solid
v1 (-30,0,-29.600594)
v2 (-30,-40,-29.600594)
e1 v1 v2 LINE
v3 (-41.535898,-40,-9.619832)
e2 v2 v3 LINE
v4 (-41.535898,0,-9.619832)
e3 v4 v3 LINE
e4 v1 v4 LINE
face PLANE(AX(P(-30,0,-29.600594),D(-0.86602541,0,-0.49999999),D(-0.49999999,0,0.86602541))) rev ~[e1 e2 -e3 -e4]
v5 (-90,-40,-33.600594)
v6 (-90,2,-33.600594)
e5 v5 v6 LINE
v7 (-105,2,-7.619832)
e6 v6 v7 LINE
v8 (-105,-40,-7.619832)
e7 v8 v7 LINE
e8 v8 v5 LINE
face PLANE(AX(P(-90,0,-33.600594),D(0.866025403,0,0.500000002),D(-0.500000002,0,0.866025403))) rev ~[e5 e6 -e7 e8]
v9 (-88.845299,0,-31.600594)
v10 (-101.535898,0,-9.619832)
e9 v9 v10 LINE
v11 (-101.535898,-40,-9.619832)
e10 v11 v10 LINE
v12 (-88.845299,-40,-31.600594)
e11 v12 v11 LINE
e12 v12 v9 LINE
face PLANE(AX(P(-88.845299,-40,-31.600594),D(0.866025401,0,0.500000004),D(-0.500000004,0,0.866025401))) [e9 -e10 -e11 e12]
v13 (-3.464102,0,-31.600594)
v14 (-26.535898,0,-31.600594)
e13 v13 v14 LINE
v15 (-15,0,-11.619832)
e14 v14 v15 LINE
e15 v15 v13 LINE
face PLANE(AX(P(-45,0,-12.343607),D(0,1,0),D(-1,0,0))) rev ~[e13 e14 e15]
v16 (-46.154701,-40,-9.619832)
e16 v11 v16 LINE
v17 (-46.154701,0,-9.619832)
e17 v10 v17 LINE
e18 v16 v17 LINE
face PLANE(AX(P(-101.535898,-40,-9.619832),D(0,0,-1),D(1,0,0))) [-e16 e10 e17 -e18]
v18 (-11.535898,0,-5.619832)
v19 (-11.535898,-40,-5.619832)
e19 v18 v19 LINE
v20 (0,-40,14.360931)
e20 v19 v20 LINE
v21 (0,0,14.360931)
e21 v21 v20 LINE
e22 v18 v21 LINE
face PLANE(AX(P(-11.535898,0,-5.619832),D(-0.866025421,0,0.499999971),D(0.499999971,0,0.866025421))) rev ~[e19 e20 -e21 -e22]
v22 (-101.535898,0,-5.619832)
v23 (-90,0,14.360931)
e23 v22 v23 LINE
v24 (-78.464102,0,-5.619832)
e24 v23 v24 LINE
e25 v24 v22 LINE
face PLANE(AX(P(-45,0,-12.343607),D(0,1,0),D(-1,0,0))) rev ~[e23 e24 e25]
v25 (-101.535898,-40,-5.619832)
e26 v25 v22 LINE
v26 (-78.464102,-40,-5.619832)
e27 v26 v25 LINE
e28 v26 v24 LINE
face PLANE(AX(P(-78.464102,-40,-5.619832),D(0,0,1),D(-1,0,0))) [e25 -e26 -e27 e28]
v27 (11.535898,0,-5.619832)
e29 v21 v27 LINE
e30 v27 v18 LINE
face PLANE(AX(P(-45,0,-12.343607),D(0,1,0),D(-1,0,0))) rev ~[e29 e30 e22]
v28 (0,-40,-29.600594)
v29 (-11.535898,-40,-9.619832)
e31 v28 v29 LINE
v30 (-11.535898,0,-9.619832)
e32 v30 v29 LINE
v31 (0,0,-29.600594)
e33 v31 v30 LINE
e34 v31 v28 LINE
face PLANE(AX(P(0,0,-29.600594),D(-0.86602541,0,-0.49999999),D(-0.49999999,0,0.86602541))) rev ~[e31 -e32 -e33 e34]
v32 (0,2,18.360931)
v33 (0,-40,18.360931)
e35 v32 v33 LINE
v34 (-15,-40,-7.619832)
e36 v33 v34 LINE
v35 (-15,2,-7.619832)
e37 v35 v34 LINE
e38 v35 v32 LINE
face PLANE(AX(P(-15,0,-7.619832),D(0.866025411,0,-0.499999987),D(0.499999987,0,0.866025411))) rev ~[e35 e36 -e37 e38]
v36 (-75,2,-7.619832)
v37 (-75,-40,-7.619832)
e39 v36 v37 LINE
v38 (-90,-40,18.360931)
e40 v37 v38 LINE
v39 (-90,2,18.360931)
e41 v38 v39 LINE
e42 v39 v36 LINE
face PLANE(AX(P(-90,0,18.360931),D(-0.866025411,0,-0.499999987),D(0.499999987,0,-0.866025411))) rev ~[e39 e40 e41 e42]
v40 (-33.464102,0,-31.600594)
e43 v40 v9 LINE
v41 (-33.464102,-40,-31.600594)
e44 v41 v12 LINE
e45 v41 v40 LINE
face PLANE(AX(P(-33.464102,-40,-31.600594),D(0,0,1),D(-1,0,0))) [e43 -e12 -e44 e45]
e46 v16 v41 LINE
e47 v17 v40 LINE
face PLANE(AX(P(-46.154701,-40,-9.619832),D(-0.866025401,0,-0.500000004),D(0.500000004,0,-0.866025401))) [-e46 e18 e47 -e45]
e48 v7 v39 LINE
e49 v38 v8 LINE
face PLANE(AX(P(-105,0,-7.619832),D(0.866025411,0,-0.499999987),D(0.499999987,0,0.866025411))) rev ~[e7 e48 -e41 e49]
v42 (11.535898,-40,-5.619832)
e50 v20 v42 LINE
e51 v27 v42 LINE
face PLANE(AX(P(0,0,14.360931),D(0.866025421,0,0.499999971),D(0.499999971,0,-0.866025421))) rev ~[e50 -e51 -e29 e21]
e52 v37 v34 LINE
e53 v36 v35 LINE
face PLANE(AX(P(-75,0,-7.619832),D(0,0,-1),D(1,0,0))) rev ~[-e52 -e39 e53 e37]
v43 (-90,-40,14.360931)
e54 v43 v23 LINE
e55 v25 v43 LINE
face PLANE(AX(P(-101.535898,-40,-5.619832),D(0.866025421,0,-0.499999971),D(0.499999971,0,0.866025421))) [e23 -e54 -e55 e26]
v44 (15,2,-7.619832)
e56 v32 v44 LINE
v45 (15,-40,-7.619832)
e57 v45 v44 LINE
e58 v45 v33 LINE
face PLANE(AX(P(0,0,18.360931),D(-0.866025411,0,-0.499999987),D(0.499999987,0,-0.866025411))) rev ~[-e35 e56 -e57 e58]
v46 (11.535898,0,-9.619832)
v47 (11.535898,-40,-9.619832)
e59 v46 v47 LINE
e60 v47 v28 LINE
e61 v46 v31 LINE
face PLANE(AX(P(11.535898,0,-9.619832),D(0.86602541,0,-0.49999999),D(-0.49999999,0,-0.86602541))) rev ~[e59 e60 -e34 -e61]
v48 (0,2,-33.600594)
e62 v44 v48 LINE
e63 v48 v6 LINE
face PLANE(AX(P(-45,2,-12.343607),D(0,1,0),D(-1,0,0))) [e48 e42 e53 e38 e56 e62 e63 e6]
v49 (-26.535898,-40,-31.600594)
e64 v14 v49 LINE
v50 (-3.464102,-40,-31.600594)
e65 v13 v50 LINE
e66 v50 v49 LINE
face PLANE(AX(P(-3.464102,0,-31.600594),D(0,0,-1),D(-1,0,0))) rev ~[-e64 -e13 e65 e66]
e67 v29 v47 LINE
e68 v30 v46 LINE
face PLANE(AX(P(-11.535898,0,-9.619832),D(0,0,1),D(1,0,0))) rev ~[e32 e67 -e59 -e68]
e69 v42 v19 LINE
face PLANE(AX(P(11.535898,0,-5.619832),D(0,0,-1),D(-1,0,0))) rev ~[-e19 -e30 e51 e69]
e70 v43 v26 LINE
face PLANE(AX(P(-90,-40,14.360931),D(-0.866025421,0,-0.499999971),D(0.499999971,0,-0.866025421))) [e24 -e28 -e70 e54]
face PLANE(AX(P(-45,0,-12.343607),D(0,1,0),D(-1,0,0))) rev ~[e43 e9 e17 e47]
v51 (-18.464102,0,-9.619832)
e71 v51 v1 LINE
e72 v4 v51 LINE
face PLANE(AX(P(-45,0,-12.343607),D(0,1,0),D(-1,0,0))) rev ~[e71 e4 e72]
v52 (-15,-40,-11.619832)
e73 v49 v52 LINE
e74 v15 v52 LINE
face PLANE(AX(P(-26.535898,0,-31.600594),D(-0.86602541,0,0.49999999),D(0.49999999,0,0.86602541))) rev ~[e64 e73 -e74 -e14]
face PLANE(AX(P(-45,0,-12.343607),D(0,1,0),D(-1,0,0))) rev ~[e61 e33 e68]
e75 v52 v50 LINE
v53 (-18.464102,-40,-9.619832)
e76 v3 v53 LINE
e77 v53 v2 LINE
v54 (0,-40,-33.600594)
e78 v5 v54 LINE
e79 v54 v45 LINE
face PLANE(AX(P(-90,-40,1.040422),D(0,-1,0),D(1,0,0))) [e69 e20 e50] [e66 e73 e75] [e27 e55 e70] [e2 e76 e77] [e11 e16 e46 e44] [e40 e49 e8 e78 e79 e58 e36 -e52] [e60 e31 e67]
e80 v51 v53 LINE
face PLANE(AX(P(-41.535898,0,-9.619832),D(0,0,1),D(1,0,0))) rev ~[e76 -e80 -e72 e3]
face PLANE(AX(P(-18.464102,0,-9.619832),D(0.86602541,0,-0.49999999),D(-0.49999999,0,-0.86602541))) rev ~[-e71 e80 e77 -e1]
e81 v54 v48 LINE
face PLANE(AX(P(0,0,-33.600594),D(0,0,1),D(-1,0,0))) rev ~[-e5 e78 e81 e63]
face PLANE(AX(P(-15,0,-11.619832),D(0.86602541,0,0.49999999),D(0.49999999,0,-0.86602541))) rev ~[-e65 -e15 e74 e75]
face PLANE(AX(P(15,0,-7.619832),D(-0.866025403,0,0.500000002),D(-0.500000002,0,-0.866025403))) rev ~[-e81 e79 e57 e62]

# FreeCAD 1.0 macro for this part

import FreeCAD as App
import Part
import Sketcher
Q = App.Units.Quantity

doc = App.newDocument("Part")
body = doc.addObject("PartDesign::Body", "Body")

sketch1 = doc.addObject("Sketcher::SketchObject", "Sketch")
body.addObject(sketch1)
sketch1.AttachmentSupport = (doc.XZ_Plane, [""])
sketch1.MapMode = "FlatFace"
sketch1.addGeometry([
    Part.LineSegment(App.Vector(-45, -8, 0), App.Vector(-30, -34, 0)),
    Part.LineSegment(App.Vector(-30, -34, 0), App.Vector(0, -34, 0)),
    Part.LineSegment(App.Vector(0, -34, 0), App.Vector(15, -8, 0)),
    Part.LineSegment(App.Vector(15, -8, 0), App.Vector(0, 18, 0)),
    Part.LineSegment(App.Vector(0, 18, 0), App.Vector(-15, -8, 0)),
    Part.LineSegment(App.Vector(-15, -8, 0), App.Vector(-45, -8, 0)),
    Part.LineSegment(App.Vector(-42, -10, 0), App.Vector(-18, -10, 0)),
    Part.LineSegment(App.Vector(-18, -10, 0), App.Vector(-30, -30, 0)),
    Part.LineSegment(App.Vector(-30, -30, 0), App.Vector(-42, -10, 0)),
    Part.LineSegment(App.Vector(-15, -12, 0), App.Vector(-3, -32, 0)),
    Part.LineSegment(App.Vector(-3, -32, 0), App.Vector(-27, -32, 0)),
    Part.LineSegment(App.Vector(-27, -32, 0), App.Vector(-15, -12, 0)),
    Part.LineSegment(App.Vector(0, -30, 0), App.Vector(-12, -10, 0)),
    Part.LineSegment(App.Vector(-12, -10, 0), App.Vector(12, -10, 0)),
    Part.LineSegment(App.Vector(12, -10, 0), App.Vector(0, -30, 0)),
    Part.LineSegment(App.Vector(12, -6, 0), App.Vector(-12, -6, 0)),
    Part.LineSegment(App.Vector(-12, -6, 0), App.Vector(0, 14, 0)),
    Part.LineSegment(App.Vector(0, 14, 0), App.Vector(12, -6, 0)),
], False)
sketch1.addConstraint([
    Sketcher.Constraint("Coincident", 0, 2, 1, 1),
    Sketcher.Constraint("Coincident", 1, 2, 2, 1),
    Sketcher.Constraint("Coincident", 2, 2, 3, 1),
    Sketcher.Constraint("Coincident", 3, 2, 4, 1),
    Sketcher.Constraint("Coincident", 4, 2, 5, 1),
    Sketcher.Constraint("Coincident", 5, 2, 0, 1),
    Sketcher.Constraint("Coincident", 6, 2, 7, 1),
    Sketcher.Constraint("Coincident", 7, 2, 8, 1),
    Sketcher.Constraint("Coincident", 8, 2, 6, 1),
    Sketcher.Constraint("Coincident", 9, 2, 10, 1),
    Sketcher.Constraint("Coincident", 10, 2, 11, 1),
    Sketcher.Constraint("Coincident", 11, 2, 9, 1),
    Sketcher.Constraint("Coincident", 12, 2, 13, 1),
    Sketcher.Constraint("Coincident", 13, 2, 14, 1),
    Sketcher.Constraint("Coincident", 14, 2, 12, 1),
    Sketcher.Constraint("Coincident", 15, 2, 16, 1),
    Sketcher.Constraint("Coincident", 16, 2, 17, 1),
    Sketcher.Constraint("Coincident", 17, 2, 15, 1),
    Sketcher.Constraint("Horizontal", 1),
    Sketcher.Constraint("Horizontal", 5),
    Sketcher.Constraint("Horizontal", 6),
    Sketcher.Constraint("Horizontal", 10),
    Sketcher.Constraint("Horizontal", 13),
    Sketcher.Constraint("Horizontal", 15),
    Sketcher.Constraint("Symmetric", 2, 2, 4, 2, -2),
    Sketcher.Constraint("PointOnObject", 1, 2, -2),
    Sketcher.Constraint("PointOnObject", 3, 2, -2),
    Sketcher.Constraint("PointOnObject", 14, 2, -2),
    Sketcher.Constraint("PointOnObject", 16, 2, -2),
    Sketcher.Constraint("Parallel", 0, 3),
    Sketcher.Constraint("Parallel", 2, 4),
    Sketcher.Constraint("Parallel", 4, 7),
    Sketcher.Constraint("Parallel", 3, 8),
    Sketcher.Constraint("Parallel", 8, 9),
    Sketcher.Constraint("Parallel", 7, 11),
    Sketcher.Constraint("Parallel", 9, 12),
    Sketcher.Constraint("Parallel", 11, 14),
    Sketcher.Constraint("Parallel", 14, 16),
    Sketcher.Constraint("Parallel", 12, 17),
    Sketcher.Constraint("Horizontal", 8, 2, 12, 2),
    Sketcher.Constraint("Horizontal", 7, 2, 14, 2),
    Sketcher.Constraint("Vertical", 0, 2, 7, 2),
    Sketcher.Constraint("Vertical", 4, 2, 11, 2),
    Sketcher.Constraint("Vertical", 12, 2, 15, 2),
    Sketcher.Constraint("Equal", 6, 10),
    Sketcher.Constraint("DistanceX", 1, 1, 1, 2, 30.0),
    Sketcher.Constraint("Angle", 0, Q("-60 deg")),
    Sketcher.Constraint("Distance", 0, 30.0),
    Sketcher.Constraint("DistanceY", 6, 2, 4, 2, 2.0),
    Sketcher.Constraint("DistanceY", 0, 2, 7, 2, 4.0),
    Sketcher.Constraint("DistanceY", 1, 2, 9, 2, 2.0),
    Sketcher.Constraint("DistanceY", 12, 2, 15, 2, 4.0),
    Sketcher.Constraint("DistanceY", 2, 2, -1, 1, 7.619832),
])
pad1 = doc.addObject("PartDesign::Pad", "Pad")
body.addObject(pad1)
pad1.Profile = sketch1
pad1.Length = 40

sketch2 = doc.addObject("Sketcher::SketchObject", "Sketch001")
body.addObject(sketch2)
sketch2.AttachmentSupport = (doc.XZ_Plane, [""])
sketch2.MapMode = "FlatFace"
sketch2.AttachmentOffset = App.Placement(App.Vector(0, 0, 40), App.Rotation())
sketch2.addGeometry([
    Part.LineSegment(App.Vector(-30, -34, 0), App.Vector(-45, -8, 0)),
    Part.LineSegment(App.Vector(-45, -8, 0), App.Vector(-105, -8, 0)),
    Part.LineSegment(App.Vector(-105, -8, 0), App.Vector(-90, -34, 0)),
    Part.LineSegment(App.Vector(-90, -34, 0), App.Vector(-30, -34, 0)),
    Part.LineSegment(App.Vector(-46, -10, 0), App.Vector(-33, -32, 0)),
    Part.LineSegment(App.Vector(-33, -32, 0), App.Vector(-89, -32, 0)),
    Part.LineSegment(App.Vector(-89, -32, 0), App.Vector(-102, -10, 0)),
    Part.LineSegment(App.Vector(-102, -10, 0), App.Vector(-46, -10, 0)),
], False)
sketch2.addConstraint([
    Sketcher.Constraint("Coincident", 0, 2, 1, 1),
    Sketcher.Constraint("Coincident", 1, 2, 2, 1),
    Sketcher.Constraint("Coincident", 2, 2, 3, 1),
    Sketcher.Constraint("Coincident", 3, 2, 0, 1),
    Sketcher.Constraint("Coincident", 4, 2, 5, 1),
    Sketcher.Constraint("Coincident", 5, 2, 6, 1),
    Sketcher.Constraint("Coincident", 6, 2, 7, 1),
    Sketcher.Constraint("Coincident", 7, 2, 4, 1),
    Sketcher.Constraint("Horizontal", 1),
    Sketcher.Constraint("Horizontal", 3),
    Sketcher.Constraint("Horizontal", 5),
    Sketcher.Constraint("Horizontal", 7),
    Sketcher.Constraint("Parallel", 0, 2),
    Sketcher.Constraint("Parallel", 2, 4),
    Sketcher.Constraint("Parallel", 4, 6),
    Sketcher.Constraint("DistanceX", 1, 2, 1, 1, 60.0),
    Sketcher.Constraint("Angle", 0, Q("120 deg")),
    Sketcher.Constraint("Distance", 0, 30.0),
    Sketcher.Constraint("DistanceX", 0, 2, -1, 1, 45.0),
    Sketcher.Constraint("DistanceY", 3, 2, 4, 2, 2.0),
    Sketcher.Constraint("DistanceY", 6, 2, 1, 2, 2.0),
    Sketcher.Constraint("DistanceX", 4, 2, -1, 1, 33.464102),
    Sketcher.Constraint("DistanceX", 5, 2, -1, 1, 88.845299),
    Sketcher.Constraint("DistanceY", 0, 2, -1, 1, 7.619832),
])
pad2 = doc.addObject("PartDesign::Pad", "Pad001")
body.addObject(pad2)
pad2.Profile = sketch2
pad2.Length = 40
pad2.Reversed = True

sketch3 = doc.addObject("Sketcher::SketchObject", "Sketch002")
body.addObject(sketch3)
sketch3.AttachmentSupport = (doc.XZ_Plane, [""])
sketch3.MapMode = "FlatFace"
sketch3.AttachmentOffset = App.Placement(App.Vector(0, 0, 40), App.Rotation())
sketch3.addGeometry([
    Part.LineSegment(App.Vector(-75, -8, 0), App.Vector(-90, 18, 0)),
    Part.LineSegment(App.Vector(-90, 18, 0), App.Vector(-105, -8, 0)),
    Part.LineSegment(App.Vector(-105, -8, 0), App.Vector(-75, -8, 0)),
    Part.LineSegment(App.Vector(-78, -6, 0), App.Vector(-102, -6, 0)),
    Part.LineSegment(App.Vector(-102, -6, 0), App.Vector(-90, 14, 0)),
    Part.LineSegment(App.Vector(-90, 14, 0), App.Vector(-78, -6, 0)),
], False)
sketch3.addConstraint([
    Sketcher.Constraint("Coincident", 0, 2, 1, 1),
    Sketcher.Constraint("Coincident", 1, 2, 2, 1),
    Sketcher.Constraint("Coincident", 2, 2, 0, 1),
    Sketcher.Constraint("Coincident", 3, 2, 4, 1),
    Sketcher.Constraint("Coincident", 4, 2, 5, 1),
    Sketcher.Constraint("Coincident", 5, 2, 3, 1),
    Sketcher.Constraint("Horizontal", 2),
    Sketcher.Constraint("Horizontal", 3),
    Sketcher.Constraint("Parallel", 1, 4),
    Sketcher.Constraint("Parallel", 0, 5),
    Sketcher.Constraint("Vertical", 0, 2, 4, 2),
    Sketcher.Constraint("Equal", 0, 1),
    Sketcher.Constraint("DistanceX", 2, 1, 2, 2, 30.0),
    Sketcher.Constraint("Angle", 0, Q("119.999999 deg")),
    Sketcher.Constraint("DistanceX", 0, 2, -1, 1, 90.0),
    Sketcher.Constraint("DistanceY", 1, 2, 3, 2, 2.0),
    Sketcher.Constraint("DistanceY", 4, 2, 0, 2, 4.0),
    Sketcher.Constraint("DistanceY", -1, 1, 0, 2, 18.360931),
])
pad3 = doc.addObject("PartDesign::Pad", "Pad002")
body.addObject(pad3)
pad3.Profile = sketch3
pad3.Length = 40
pad3.Reversed = True

sketch4 = doc.addObject("Sketcher::SketchObject", "Sketch003")
body.addObject(sketch4)
sketch4.AttachmentSupport = (doc.XZ_Plane, [""])
sketch4.MapMode = "FlatFace"
sketch4.addGeometry([
    Part.LineSegment(App.Vector(0, 18, 0), App.Vector(15, -8, 0)),
    Part.LineSegment(App.Vector(15, -8, 0), App.Vector(0, -34, 0)),
    Part.LineSegment(App.Vector(0, -34, 0), App.Vector(-90, -34, 0)),
    Part.LineSegment(App.Vector(-90, -34, 0), App.Vector(-105, -8, 0)),
    Part.LineSegment(App.Vector(-105, -8, 0), App.Vector(-90, 18, 0)),
    Part.LineSegment(App.Vector(-90, 18, 0), App.Vector(-75, -8, 0)),
    Part.LineSegment(App.Vector(-75, -8, 0), App.Vector(-15, -8, 0)),
    Part.LineSegment(App.Vector(-15, -8, 0), App.Vector(0, 18, 0)),
], False)
sketch4.addConstraint([
    Sketcher.Constraint("Coincident", 0, 2, 1, 1),
    Sketcher.Constraint("Coincident", 1, 2, 2, 1),
    Sketcher.Constraint("Coincident", 2, 2, 3, 1),
    Sketcher.Constraint("Coincident", 3, 2, 4, 1),
    Sketcher.Constraint("Coincident", 4, 2, 5, 1),
    Sketcher.Constraint("Coincident", 5, 2, 6, 1),
    Sketcher.Constraint("Coincident", 6, 2, 7, 1),
    Sketcher.Constraint("Coincident", 7, 2, 0, 1),
    Sketcher.Constraint("Horizontal", 2),
    Sketcher.Constraint("Horizontal", 6),
    Sketcher.Constraint("Symmetric", 0, 2, 6, 2, -2),
    Sketcher.Constraint("PointOnObject", 1, 2, -2),
    Sketcher.Constraint("PointOnObject", 7, 2, -2),
    Sketcher.Constraint("Parallel", 0, 3),
    Sketcher.Constraint("Parallel", 1, 4),
    Sketcher.Constraint("Parallel", 3, 5),
    Sketcher.Constraint("Parallel", 4, 7),
    Sketcher.Constraint("Horizontal", 0, 2, 3, 2),
    Sketcher.Constraint("Horizontal", 4, 2, 7, 2),
    Sketcher.Constraint("DistanceX", 2, 2, 2, 1, 90.0),
    Sketcher.Constraint("DistanceX", 6, 1, 6, 2, 60.0),
    Sketcher.Constraint("Angle", 0, Q("-60.000001 deg")),
    Sketcher.Constraint("DistanceY", 0, 2, -1, 1, 7.619832),
])
pad4 = doc.addObject("PartDesign::Pad", "Pad003")
body.addObject(pad4)
pad4.Profile = sketch4
pad4.Length = 2
pad4.Reversed = True

doc.recompute()
